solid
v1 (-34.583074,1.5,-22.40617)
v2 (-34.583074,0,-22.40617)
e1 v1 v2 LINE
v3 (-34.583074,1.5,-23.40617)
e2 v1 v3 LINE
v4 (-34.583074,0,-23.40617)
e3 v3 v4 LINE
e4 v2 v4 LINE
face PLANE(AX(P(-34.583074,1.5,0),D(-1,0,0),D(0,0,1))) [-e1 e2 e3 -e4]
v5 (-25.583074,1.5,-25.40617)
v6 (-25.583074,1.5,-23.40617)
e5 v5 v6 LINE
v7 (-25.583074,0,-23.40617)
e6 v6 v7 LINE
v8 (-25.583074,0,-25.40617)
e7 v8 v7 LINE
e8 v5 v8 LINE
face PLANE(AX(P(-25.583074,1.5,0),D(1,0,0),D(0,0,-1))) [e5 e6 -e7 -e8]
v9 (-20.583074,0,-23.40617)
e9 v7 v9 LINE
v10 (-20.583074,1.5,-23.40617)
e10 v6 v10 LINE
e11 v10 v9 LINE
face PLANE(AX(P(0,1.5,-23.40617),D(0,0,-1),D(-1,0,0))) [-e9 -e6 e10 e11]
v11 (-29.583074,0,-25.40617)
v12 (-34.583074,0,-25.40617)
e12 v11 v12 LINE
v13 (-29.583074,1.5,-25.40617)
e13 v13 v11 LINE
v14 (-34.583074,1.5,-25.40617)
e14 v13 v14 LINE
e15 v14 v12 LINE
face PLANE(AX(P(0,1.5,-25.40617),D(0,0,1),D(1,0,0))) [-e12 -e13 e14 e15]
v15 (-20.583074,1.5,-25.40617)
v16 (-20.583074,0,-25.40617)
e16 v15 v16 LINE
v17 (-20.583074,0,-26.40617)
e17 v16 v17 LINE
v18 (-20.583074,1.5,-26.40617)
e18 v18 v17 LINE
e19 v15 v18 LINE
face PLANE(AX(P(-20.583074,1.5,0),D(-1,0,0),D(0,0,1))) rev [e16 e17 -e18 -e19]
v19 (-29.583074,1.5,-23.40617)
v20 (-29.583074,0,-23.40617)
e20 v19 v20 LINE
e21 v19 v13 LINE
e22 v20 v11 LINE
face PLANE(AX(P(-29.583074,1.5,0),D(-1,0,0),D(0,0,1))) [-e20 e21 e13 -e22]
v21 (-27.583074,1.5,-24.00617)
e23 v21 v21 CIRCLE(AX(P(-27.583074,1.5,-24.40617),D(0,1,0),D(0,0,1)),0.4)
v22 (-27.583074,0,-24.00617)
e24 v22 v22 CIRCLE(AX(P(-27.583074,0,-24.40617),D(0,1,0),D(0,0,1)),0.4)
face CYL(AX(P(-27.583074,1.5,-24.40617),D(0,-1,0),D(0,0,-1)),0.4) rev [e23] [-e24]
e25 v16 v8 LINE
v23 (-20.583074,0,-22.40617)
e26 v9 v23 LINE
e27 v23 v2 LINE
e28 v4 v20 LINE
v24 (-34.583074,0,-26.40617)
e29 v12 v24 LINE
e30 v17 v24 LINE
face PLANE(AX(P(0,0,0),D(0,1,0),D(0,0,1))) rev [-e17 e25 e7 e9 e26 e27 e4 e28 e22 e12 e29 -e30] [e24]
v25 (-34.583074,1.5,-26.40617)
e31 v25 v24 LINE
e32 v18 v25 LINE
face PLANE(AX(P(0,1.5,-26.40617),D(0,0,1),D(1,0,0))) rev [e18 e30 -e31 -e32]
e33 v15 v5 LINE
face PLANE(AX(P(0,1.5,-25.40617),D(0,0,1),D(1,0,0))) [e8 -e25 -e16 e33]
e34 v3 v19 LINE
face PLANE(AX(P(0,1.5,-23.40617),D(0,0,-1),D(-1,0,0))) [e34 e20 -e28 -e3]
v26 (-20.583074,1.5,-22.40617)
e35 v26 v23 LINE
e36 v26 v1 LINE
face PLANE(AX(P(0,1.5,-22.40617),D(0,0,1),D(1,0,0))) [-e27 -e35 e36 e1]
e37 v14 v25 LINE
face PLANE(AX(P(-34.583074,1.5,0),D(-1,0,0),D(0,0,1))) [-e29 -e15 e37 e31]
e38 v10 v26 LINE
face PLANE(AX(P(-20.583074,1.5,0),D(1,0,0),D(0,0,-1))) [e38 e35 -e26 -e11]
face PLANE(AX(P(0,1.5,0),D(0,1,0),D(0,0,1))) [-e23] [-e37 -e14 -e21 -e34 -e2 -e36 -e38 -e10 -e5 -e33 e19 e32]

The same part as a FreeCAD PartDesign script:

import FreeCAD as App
import Part
import Sketcher

V = App.Vector

doc = App.newDocument("Part")
params = doc.addObject("Spreadsheet::Sheet", "Params")
for row, (alias, value) in enumerate([
    ("sketch1_diameter", "0.8 mm"),
    ("sketch1_width", "14 mm"),
    ("sketch1_width2", "5 mm"),
    ("sketch1_height", "1 mm"),
    ("sketch1_height2", "2 mm"),
    ("pad1_length", "1.5 mm"),
], start=1):
    params.set(f"A{row}", alias)
    params.set(f"B{row}", "=" + value)
    params.setAlias(f"B{row}", alias)

body = doc.addObject("PartDesign::Body", "Body")

sketch1 = body.newObject("Sketcher::SketchObject", "Sketch")
sketch1.AttachmentSupport = (doc.getObject("XZ_Plane"), [""])
sketch1.MapMode = "FlatFace"
sketch1.addGeometry([
    Part.LineSegment(V(-20.58, -25.41, 0), V(-20.58, -26.41, 0)),
    Part.LineSegment(V(-20.58, -26.41, 0), V(-34.58, -26.41, 0)),
    Part.LineSegment(V(-34.58, -26.41, 0), V(-34.58, -25.41, 0)),
    Part.LineSegment(V(-34.58, -25.41, 0), V(-29.58, -25.41, 0)),
    Part.LineSegment(V(-29.58, -25.41, 0), V(-29.58, -23.41, 0)),
    Part.LineSegment(V(-29.58, -23.41, 0), V(-34.58, -23.41, 0)),
    Part.LineSegment(V(-34.58, -23.41, 0), V(-34.58, -22.41, 0)),
    Part.LineSegment(V(-34.58, -22.41, 0), V(-20.58, -22.41, 0)),
    Part.LineSegment(V(-20.58, -22.41, 0), V(-20.58, -23.41, 0)),
    Part.LineSegment(V(-20.58, -23.41, 0), V(-25.58, -23.41, 0)),
    Part.LineSegment(V(-25.58, -23.41, 0), V(-25.58, -25.41, 0)),
    Part.LineSegment(V(-25.58, -25.41, 0), V(-20.58, -25.41, 0)),
    Part.Circle(V(-27.58, -24.41, 0), V(0, 0, 1), 0.4),
], False)
sketch1.addConstraint([
    Sketcher.Constraint("Coincident", 0, 2, 1, 1),
    Sketcher.Constraint("Coincident", 1, 2, 2, 1),
    Sketcher.Constraint("Coincident", 2, 2, 3, 1),
    Sketcher.Constraint("Coincident", 3, 2, 4, 1),
    Sketcher.Constraint("Coincident", 4, 2, 5, 1),
    Sketcher.Constraint("Coincident", 5, 2, 6, 1),
    Sketcher.Constraint("Coincident", 6, 2, 7, 1),
    Sketcher.Constraint("Coincident", 7, 2, 8, 1),
    Sketcher.Constraint("Coincident", 8, 2, 9, 1),
    Sketcher.Constraint("Coincident", 9, 2, 10, 1),
    Sketcher.Constraint("Coincident", 10, 2, 11, 1),
    Sketcher.Constraint("Coincident", 11, 2, 0, 1),
    Sketcher.Constraint("Vertical", 0),
    Sketcher.Constraint("Horizontal", 1),
    Sketcher.Constraint("Vertical", 2),
    Sketcher.Constraint("Horizontal", 3),
    Sketcher.Constraint("Vertical", 4),
    Sketcher.Constraint("Horizontal", 5),
    Sketcher.Constraint("Vertical", 6),
    Sketcher.Constraint("Horizontal", 7),
    Sketcher.Constraint("Vertical", 8),
    Sketcher.Constraint("Horizontal", 9),
    Sketcher.Constraint("Vertical", 10),
    Sketcher.Constraint("Horizontal", 11),
    Sketcher.Constraint("Horizontal", 5, 2, 8, 2),
    Sketcher.Constraint("Horizontal", 3, 2, 10, 2),
    Sketcher.Constraint("Vertical", 2, 2, 5, 2),
    Sketcher.Constraint("Vertical", 0, 2, 7, 2),
    Sketcher.Constraint("Equal", 5, 9),
    Sketcher.Constraint("Equal", 2, 6),
    Sketcher.Constraint("Diameter", 12, 0.8),
    Sketcher.Constraint("DistanceX", 1, 2, 1, 1, 14.0),
    Sketcher.Constraint("DistanceX", 3, 1, 3, 2, 5.0),
    Sketcher.Constraint("DistanceY", 0, 2, 0, 1, 1.0),
    Sketcher.Constraint("DistanceY", 4, 1, 4, 2, 2.0),
    Sketcher.Constraint("DistanceX", 12, 3, 0, 2, 7.0),
    Sketcher.Constraint("DistanceY", 0, 2, 12, 3, 2.0),
    Sketcher.Constraint("DistanceY", 12, 3, -1, 1, 24.40617),
    Sketcher.Constraint("DistanceX", 12, 3, -1, 1, 27.583074),
])
sketch1.setExpression("Constraints[30]", "Params.sketch1_diameter")
sketch1.setExpression("Constraints[31]", "Params.sketch1_width")
sketch1.setExpression("Constraints[32]", "Params.sketch1_width2")
sketch1.setExpression("Constraints[33]", "Params.sketch1_height")
sketch1.setExpression("Constraints[34]", "Params.sketch1_height2")
pad1 = body.newObject("PartDesign::Pad", "Pad")
pad1.Profile = sketch1
pad1.setExpression("Length", "Params.pad1_length")
pad1.Reversed = True

doc.recompute()
